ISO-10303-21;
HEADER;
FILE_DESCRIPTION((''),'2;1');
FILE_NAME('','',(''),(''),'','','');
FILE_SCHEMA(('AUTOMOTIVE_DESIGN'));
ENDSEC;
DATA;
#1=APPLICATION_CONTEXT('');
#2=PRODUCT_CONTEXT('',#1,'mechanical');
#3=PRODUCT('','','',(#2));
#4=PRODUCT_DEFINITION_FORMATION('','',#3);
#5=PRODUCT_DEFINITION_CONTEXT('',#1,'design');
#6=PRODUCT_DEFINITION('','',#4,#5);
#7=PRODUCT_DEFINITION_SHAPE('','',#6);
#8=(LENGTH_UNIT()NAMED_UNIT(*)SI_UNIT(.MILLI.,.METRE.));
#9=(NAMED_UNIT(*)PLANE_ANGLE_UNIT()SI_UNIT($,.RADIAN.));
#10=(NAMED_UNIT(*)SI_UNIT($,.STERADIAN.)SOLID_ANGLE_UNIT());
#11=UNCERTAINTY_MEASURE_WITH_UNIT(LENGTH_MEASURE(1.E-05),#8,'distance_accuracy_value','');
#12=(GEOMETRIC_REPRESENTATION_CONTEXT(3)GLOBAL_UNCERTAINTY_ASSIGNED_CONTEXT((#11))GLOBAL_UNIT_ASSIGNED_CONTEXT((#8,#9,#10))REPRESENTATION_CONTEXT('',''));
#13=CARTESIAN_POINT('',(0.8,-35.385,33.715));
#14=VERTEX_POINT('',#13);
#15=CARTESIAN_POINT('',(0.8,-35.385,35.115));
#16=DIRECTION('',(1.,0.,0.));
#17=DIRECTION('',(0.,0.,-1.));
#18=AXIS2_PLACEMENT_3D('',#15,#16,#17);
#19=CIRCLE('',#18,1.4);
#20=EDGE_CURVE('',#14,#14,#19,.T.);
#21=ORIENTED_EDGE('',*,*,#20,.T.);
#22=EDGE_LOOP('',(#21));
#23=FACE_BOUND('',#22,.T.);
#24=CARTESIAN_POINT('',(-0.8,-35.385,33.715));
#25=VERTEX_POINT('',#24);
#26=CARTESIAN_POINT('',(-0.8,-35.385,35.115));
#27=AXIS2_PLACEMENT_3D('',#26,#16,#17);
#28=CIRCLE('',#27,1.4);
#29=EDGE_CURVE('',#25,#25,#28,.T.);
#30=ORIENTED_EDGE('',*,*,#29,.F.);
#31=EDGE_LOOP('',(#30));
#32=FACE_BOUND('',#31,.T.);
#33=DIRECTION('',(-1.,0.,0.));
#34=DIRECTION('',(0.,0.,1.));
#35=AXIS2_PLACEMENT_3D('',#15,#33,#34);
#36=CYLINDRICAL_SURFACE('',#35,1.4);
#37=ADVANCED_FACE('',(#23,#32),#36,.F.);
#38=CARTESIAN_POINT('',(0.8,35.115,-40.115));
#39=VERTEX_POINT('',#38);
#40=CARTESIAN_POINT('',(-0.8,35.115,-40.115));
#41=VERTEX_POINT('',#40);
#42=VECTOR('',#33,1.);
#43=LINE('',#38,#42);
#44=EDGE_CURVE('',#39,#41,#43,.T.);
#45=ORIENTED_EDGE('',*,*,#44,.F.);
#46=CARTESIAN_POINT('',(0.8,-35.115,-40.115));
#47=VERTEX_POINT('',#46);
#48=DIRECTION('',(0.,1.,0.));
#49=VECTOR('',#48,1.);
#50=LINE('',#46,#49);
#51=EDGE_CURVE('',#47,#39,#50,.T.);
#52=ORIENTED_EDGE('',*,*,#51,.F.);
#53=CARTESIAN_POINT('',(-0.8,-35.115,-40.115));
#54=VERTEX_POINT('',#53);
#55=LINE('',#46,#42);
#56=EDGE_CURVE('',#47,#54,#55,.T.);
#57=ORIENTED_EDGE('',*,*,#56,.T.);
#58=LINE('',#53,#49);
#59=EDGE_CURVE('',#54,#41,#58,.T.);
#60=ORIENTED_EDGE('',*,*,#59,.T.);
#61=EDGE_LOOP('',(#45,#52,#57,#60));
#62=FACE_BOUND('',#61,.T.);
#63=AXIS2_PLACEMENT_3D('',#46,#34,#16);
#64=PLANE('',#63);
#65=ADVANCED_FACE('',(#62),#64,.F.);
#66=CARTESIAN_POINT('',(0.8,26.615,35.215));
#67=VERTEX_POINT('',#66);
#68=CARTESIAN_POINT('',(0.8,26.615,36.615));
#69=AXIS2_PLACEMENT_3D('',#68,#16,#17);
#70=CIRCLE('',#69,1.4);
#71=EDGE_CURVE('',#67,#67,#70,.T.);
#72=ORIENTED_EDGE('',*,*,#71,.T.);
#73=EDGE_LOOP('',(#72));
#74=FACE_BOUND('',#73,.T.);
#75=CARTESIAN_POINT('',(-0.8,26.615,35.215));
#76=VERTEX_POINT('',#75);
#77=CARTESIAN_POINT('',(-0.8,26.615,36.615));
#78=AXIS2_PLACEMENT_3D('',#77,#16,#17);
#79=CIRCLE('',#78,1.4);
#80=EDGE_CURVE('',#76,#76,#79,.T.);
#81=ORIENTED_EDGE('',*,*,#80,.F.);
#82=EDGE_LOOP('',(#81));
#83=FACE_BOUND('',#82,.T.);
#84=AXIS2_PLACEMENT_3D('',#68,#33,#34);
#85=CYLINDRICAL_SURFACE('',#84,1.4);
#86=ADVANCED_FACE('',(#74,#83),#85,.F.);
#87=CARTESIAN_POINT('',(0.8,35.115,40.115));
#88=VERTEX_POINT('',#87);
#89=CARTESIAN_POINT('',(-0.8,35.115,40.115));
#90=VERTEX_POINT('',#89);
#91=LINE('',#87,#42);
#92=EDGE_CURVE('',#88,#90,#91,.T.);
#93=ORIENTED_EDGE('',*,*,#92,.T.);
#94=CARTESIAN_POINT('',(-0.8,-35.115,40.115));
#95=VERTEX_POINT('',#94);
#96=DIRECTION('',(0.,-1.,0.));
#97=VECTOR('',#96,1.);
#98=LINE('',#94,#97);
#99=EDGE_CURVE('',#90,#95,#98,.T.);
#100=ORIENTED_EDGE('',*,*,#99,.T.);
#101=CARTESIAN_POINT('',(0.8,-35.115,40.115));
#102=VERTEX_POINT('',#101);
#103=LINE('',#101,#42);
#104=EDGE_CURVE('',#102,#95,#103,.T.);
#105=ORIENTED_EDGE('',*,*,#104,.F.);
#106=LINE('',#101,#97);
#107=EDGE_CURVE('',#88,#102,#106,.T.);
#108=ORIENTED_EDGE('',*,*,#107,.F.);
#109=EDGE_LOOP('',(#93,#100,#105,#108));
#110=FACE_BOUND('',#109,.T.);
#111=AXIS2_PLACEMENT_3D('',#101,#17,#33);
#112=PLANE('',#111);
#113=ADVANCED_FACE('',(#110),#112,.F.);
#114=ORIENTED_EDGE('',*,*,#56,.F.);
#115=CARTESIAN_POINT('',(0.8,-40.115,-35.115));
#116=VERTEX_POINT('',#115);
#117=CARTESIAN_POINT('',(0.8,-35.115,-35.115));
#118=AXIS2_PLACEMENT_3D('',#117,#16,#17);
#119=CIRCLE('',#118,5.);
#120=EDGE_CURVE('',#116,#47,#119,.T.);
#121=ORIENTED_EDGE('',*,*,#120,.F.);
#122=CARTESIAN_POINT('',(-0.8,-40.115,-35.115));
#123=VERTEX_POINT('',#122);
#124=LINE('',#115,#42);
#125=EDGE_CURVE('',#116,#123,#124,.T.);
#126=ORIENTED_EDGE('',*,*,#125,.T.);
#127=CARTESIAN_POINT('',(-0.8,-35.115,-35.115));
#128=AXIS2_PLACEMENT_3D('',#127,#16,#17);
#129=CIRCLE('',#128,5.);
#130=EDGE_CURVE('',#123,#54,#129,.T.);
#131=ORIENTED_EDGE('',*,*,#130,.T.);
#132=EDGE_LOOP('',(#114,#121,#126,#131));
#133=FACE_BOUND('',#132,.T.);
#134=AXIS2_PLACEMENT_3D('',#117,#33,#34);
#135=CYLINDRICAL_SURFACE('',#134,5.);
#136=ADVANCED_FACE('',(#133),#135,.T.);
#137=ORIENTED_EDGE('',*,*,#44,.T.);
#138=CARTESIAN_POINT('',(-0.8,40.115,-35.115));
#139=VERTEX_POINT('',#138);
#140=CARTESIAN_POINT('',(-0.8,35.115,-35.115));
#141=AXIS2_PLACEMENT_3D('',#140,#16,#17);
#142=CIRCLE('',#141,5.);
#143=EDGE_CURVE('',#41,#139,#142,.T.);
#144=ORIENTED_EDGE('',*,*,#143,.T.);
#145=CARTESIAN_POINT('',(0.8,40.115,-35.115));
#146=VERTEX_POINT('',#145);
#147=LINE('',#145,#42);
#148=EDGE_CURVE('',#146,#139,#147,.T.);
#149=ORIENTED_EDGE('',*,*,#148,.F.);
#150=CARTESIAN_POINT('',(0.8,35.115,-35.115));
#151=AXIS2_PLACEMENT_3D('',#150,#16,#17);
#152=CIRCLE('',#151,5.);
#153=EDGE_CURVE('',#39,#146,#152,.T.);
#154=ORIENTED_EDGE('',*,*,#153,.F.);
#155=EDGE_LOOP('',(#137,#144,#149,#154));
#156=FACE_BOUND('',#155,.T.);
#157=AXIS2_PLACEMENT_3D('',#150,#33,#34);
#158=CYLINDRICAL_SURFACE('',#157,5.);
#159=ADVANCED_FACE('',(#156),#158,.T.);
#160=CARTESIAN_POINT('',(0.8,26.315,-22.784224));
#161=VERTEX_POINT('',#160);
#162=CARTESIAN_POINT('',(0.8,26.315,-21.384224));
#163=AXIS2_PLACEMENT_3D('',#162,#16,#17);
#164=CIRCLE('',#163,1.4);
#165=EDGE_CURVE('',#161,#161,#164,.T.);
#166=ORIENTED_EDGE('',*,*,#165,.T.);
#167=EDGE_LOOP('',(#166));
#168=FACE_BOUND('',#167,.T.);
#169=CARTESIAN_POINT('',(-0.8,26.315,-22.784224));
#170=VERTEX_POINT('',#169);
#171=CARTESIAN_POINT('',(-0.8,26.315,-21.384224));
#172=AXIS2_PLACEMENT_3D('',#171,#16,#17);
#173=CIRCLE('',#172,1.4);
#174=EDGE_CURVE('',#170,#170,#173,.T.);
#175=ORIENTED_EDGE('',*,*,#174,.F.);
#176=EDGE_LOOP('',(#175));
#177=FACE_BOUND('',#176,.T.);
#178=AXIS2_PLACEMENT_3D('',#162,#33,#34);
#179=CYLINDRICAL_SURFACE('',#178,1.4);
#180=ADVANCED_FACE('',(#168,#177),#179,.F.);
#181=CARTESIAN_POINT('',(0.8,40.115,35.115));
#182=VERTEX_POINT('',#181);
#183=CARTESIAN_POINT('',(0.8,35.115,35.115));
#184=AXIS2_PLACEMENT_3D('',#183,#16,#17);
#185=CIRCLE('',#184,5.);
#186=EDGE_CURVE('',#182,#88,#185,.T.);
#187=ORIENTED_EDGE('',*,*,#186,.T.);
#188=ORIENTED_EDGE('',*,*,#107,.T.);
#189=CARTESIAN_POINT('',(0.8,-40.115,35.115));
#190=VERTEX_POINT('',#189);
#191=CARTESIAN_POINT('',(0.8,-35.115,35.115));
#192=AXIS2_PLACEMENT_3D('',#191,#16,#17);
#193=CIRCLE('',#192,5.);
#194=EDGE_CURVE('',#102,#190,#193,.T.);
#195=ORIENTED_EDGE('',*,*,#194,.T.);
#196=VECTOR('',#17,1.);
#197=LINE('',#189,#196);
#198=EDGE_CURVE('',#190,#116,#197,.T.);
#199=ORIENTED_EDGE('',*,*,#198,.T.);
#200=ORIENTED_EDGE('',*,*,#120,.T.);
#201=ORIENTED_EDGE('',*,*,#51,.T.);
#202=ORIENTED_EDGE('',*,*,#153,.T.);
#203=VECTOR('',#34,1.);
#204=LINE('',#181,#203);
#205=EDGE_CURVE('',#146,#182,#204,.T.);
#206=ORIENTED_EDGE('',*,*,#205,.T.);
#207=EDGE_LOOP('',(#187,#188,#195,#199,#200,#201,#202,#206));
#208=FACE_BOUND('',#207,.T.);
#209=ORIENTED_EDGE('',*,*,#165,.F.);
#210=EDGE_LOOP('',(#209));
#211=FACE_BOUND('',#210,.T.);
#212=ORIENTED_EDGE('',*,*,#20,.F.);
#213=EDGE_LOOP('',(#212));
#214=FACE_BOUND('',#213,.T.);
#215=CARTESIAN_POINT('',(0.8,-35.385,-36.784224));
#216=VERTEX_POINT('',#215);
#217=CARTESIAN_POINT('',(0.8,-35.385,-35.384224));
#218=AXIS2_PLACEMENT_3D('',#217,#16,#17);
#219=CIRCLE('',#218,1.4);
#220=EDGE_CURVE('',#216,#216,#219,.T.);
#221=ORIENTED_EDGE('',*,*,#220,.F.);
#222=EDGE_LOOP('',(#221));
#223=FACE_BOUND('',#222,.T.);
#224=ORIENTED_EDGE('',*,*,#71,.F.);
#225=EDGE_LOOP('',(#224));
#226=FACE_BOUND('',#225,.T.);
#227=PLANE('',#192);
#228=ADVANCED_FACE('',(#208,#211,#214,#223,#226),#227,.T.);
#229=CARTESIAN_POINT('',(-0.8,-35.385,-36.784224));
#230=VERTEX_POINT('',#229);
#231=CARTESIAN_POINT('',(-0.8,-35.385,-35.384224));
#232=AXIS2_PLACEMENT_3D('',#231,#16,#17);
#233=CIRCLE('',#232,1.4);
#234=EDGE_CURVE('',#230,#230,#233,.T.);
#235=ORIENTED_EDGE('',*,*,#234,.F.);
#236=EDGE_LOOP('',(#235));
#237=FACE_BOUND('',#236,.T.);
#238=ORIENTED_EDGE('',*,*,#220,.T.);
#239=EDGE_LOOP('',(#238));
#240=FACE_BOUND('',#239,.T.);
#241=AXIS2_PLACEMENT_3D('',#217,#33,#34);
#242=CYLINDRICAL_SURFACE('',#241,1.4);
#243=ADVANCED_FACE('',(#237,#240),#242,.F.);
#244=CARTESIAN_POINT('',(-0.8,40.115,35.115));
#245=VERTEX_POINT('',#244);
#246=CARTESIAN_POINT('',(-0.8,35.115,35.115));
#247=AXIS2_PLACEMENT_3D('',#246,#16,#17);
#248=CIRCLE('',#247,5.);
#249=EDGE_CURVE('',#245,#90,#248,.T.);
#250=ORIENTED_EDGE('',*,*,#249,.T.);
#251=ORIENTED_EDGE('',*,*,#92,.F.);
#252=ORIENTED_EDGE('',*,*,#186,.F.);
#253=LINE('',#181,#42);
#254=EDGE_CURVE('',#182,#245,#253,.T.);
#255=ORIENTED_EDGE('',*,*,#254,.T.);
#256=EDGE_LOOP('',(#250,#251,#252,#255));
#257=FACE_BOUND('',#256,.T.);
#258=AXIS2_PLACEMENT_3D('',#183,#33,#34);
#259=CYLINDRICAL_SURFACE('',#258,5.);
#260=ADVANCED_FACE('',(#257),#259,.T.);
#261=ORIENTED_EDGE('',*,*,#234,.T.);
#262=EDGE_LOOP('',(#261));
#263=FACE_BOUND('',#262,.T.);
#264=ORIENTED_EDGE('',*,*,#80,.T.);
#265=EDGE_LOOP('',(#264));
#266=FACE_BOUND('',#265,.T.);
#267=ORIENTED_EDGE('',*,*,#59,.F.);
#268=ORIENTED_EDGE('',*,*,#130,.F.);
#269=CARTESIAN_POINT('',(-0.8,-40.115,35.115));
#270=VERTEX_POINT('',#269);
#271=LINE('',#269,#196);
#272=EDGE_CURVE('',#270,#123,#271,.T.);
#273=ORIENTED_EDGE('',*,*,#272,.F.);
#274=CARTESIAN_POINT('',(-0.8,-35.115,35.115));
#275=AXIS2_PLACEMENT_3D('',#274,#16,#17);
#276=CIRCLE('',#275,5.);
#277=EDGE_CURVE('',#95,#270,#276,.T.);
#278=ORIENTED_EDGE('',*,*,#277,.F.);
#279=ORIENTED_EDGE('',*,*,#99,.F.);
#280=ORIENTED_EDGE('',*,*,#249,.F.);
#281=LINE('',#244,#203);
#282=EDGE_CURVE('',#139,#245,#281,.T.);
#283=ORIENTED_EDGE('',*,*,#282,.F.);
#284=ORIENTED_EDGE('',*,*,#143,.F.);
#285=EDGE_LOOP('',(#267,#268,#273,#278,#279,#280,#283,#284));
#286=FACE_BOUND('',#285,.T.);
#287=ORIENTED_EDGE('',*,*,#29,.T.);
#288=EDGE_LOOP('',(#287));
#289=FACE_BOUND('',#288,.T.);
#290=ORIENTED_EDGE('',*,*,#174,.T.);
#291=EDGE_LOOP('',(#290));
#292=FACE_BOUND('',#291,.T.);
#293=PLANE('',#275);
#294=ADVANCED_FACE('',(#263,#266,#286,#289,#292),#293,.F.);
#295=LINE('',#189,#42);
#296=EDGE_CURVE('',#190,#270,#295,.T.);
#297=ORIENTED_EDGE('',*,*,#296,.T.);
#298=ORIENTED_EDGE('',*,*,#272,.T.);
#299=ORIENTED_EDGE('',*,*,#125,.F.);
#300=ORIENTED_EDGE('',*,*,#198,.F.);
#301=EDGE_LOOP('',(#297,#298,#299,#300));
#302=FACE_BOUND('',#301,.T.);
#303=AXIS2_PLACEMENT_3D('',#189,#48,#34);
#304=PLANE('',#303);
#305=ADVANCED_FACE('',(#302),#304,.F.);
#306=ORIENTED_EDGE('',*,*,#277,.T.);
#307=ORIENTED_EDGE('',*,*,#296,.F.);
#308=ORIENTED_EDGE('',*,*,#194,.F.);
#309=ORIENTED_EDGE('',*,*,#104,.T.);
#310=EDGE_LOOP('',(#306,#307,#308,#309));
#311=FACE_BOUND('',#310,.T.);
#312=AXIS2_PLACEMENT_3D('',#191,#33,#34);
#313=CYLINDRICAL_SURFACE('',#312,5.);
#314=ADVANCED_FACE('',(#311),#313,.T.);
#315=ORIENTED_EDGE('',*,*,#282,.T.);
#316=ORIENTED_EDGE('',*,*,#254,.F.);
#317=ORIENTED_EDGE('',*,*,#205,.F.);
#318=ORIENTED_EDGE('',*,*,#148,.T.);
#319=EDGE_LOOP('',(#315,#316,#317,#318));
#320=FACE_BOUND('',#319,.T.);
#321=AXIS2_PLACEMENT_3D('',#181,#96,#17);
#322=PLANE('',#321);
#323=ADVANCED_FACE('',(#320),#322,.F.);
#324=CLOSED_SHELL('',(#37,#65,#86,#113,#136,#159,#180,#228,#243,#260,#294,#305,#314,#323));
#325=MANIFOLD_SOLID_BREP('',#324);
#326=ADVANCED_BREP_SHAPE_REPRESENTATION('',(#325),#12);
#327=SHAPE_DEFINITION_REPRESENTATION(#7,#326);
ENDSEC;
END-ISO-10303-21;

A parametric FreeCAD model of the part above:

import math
import FreeCAD as App
import Part
import Sketcher

doc = App.newDocument("Part")
params = doc.addObject("Spreadsheet::Sheet", "Params")
for row, (alias, value) in enumerate([
    ("sketch1_radius", "5 mm"),
    ("sketch1_diameter", "2.8 mm"),
    ("sketch1_width", "70.23 mm"),
    ("pad1_length", "1.6 mm"),
], start=1):
    params.set(f"A{row}", alias)
    params.set(f"B{row}", "=" + value)
    params.setAlias(f"B{row}", alias)

body = doc.addObject("PartDesign::Body", "Body")

# Sketch on YZ plane
sketch1 = body.newObject("Sketcher::SketchObject", "Sketch")
sketch1.AttachmentSupport = (doc.getObject("YZ_Plane"), [""])
sketch1.MapMode = "FlatFace"
sketch1.addGeometry([
    Part.LineSegment(App.Vector(-40.1, 35.1, 0), App.Vector(-40.1, -35.1, 0)),  # 0
    Part.ArcOfCircle(Part.Circle(App.Vector(-35.1, -35.1, 0), App.Vector(0, 0, 1), 5), math.radians(180), math.radians(270)),  # 1
    Part.LineSegment(App.Vector(-35.1, -40.1, 0), App.Vector(35.1, -40.1, 0)),  # 2
    Part.ArcOfCircle(Part.Circle(App.Vector(35.1, -35.1, 0), App.Vector(0, 0, 1), 5), math.radians(-90), math.radians(0)),  # 3
    Part.LineSegment(App.Vector(40.1, -35.1, 0), App.Vector(40.1, 35.1, 0)),  # 4
    Part.ArcOfCircle(Part.Circle(App.Vector(35.1, 35.1, 0), App.Vector(0, 0, 1), 5), math.radians(0), math.radians(90)),  # 5
    Part.LineSegment(App.Vector(35.1, 40.1, 0), App.Vector(-35.1, 40.1, 0)),  # 6
    Part.ArcOfCircle(Part.Circle(App.Vector(-35.1, 35.1, 0), App.Vector(0, 0, 1), 5), math.radians(90), math.radians(180)),  # 7
    Part.Circle(App.Vector(-35.4, 35.1, 0), App.Vector(0, 0, 1), 1.4),  # 8
    Part.Circle(App.Vector(-35.4, -35.4, 0), App.Vector(0, 0, 1), 1.4),  # 9
    Part.Circle(App.Vector(26.6, 36.6, 0), App.Vector(0, 0, 1), 1.4),  # 10
    Part.Circle(App.Vector(26.3, -21.4, 0), App.Vector(0, 0, 1), 1.4),  # 11
], False)
sketch1.addConstraint([
    Sketcher.Constraint("Tangent", 0, 2, 1, 1),
    Sketcher.Constraint("Tangent", 1, 2, 2, 1),
    Sketcher.Constraint("Tangent", 2, 2, 3, 1),
    Sketcher.Constraint("Tangent", 3, 2, 4, 1),
    Sketcher.Constraint("Tangent", 4, 2, 5, 1),
    Sketcher.Constraint("Tangent", 5, 2, 6, 1),
    Sketcher.Constraint("Tangent", 6, 2, 7, 1),
    Sketcher.Constraint("Tangent", 7, 2, 0, 1),
    Sketcher.Constraint("Vertical", 0),
    Sketcher.Constraint("Horizontal", 2),
    Sketcher.Constraint("Vertical", 4),
    Sketcher.Constraint("Horizontal", 6),
    Sketcher.Constraint("Equal", 1, 3),
    Sketcher.Constraint("Equal", 3, 5),
    Sketcher.Constraint("Equal", 5, 7),
    Sketcher.Constraint("Equal", 8, 9),
    Sketcher.Constraint("Equal", 9, 10),
    Sketcher.Constraint("Equal", 10, 11),
    Sketcher.Constraint("Symmetric", 1, 3, 5, 3, -1, 1),
    Sketcher.Constraint("Horizontal", 7, 3, 8, 3),
    Sketcher.Constraint("Vertical", 8, 3, 9, 3),
    Sketcher.Constraint("Equal", 6, 0),
    Sketcher.Constraint("Radius", 1, 5.0),
    Sketcher.Constraint("Diameter", 8, 2.8),
    Sketcher.Constraint("DistanceX", 8, 3, 10, 3, 62.0),
    Sketcher.Constraint("DistanceY", 9, 3, 11, 3, 14.0),
    Sketcher.Constraint("DistanceX", 2, 1, 2, 2, 70.23),
    Sketcher.Constraint("DistanceX", 8, 3, 5, 3, 70.5),
    Sketcher.Constraint("DistanceY", 5, 3, 10, 3, 1.5),
    Sketcher.Constraint("DistanceX", 11, 3, 3, 3, 8.8),
    Sketcher.Constraint("DistanceY", 9, 3, -1, 1, 35.384224),
])
sketch1.setExpression("Constraints[22]", "Params.sketch1_radius")
sketch1.setExpression("Constraints[23]", "Params.sketch1_diameter")
sketch1.setExpression("Constraints[26]", "Params.sketch1_width")
pad1 = body.newObject("PartDesign::Pad", "Pad")
pad1.Profile = sketch1
pad1.setExpression("Length", "Params.pad1_length")
pad1.Midplane = True

doc.recompute()
